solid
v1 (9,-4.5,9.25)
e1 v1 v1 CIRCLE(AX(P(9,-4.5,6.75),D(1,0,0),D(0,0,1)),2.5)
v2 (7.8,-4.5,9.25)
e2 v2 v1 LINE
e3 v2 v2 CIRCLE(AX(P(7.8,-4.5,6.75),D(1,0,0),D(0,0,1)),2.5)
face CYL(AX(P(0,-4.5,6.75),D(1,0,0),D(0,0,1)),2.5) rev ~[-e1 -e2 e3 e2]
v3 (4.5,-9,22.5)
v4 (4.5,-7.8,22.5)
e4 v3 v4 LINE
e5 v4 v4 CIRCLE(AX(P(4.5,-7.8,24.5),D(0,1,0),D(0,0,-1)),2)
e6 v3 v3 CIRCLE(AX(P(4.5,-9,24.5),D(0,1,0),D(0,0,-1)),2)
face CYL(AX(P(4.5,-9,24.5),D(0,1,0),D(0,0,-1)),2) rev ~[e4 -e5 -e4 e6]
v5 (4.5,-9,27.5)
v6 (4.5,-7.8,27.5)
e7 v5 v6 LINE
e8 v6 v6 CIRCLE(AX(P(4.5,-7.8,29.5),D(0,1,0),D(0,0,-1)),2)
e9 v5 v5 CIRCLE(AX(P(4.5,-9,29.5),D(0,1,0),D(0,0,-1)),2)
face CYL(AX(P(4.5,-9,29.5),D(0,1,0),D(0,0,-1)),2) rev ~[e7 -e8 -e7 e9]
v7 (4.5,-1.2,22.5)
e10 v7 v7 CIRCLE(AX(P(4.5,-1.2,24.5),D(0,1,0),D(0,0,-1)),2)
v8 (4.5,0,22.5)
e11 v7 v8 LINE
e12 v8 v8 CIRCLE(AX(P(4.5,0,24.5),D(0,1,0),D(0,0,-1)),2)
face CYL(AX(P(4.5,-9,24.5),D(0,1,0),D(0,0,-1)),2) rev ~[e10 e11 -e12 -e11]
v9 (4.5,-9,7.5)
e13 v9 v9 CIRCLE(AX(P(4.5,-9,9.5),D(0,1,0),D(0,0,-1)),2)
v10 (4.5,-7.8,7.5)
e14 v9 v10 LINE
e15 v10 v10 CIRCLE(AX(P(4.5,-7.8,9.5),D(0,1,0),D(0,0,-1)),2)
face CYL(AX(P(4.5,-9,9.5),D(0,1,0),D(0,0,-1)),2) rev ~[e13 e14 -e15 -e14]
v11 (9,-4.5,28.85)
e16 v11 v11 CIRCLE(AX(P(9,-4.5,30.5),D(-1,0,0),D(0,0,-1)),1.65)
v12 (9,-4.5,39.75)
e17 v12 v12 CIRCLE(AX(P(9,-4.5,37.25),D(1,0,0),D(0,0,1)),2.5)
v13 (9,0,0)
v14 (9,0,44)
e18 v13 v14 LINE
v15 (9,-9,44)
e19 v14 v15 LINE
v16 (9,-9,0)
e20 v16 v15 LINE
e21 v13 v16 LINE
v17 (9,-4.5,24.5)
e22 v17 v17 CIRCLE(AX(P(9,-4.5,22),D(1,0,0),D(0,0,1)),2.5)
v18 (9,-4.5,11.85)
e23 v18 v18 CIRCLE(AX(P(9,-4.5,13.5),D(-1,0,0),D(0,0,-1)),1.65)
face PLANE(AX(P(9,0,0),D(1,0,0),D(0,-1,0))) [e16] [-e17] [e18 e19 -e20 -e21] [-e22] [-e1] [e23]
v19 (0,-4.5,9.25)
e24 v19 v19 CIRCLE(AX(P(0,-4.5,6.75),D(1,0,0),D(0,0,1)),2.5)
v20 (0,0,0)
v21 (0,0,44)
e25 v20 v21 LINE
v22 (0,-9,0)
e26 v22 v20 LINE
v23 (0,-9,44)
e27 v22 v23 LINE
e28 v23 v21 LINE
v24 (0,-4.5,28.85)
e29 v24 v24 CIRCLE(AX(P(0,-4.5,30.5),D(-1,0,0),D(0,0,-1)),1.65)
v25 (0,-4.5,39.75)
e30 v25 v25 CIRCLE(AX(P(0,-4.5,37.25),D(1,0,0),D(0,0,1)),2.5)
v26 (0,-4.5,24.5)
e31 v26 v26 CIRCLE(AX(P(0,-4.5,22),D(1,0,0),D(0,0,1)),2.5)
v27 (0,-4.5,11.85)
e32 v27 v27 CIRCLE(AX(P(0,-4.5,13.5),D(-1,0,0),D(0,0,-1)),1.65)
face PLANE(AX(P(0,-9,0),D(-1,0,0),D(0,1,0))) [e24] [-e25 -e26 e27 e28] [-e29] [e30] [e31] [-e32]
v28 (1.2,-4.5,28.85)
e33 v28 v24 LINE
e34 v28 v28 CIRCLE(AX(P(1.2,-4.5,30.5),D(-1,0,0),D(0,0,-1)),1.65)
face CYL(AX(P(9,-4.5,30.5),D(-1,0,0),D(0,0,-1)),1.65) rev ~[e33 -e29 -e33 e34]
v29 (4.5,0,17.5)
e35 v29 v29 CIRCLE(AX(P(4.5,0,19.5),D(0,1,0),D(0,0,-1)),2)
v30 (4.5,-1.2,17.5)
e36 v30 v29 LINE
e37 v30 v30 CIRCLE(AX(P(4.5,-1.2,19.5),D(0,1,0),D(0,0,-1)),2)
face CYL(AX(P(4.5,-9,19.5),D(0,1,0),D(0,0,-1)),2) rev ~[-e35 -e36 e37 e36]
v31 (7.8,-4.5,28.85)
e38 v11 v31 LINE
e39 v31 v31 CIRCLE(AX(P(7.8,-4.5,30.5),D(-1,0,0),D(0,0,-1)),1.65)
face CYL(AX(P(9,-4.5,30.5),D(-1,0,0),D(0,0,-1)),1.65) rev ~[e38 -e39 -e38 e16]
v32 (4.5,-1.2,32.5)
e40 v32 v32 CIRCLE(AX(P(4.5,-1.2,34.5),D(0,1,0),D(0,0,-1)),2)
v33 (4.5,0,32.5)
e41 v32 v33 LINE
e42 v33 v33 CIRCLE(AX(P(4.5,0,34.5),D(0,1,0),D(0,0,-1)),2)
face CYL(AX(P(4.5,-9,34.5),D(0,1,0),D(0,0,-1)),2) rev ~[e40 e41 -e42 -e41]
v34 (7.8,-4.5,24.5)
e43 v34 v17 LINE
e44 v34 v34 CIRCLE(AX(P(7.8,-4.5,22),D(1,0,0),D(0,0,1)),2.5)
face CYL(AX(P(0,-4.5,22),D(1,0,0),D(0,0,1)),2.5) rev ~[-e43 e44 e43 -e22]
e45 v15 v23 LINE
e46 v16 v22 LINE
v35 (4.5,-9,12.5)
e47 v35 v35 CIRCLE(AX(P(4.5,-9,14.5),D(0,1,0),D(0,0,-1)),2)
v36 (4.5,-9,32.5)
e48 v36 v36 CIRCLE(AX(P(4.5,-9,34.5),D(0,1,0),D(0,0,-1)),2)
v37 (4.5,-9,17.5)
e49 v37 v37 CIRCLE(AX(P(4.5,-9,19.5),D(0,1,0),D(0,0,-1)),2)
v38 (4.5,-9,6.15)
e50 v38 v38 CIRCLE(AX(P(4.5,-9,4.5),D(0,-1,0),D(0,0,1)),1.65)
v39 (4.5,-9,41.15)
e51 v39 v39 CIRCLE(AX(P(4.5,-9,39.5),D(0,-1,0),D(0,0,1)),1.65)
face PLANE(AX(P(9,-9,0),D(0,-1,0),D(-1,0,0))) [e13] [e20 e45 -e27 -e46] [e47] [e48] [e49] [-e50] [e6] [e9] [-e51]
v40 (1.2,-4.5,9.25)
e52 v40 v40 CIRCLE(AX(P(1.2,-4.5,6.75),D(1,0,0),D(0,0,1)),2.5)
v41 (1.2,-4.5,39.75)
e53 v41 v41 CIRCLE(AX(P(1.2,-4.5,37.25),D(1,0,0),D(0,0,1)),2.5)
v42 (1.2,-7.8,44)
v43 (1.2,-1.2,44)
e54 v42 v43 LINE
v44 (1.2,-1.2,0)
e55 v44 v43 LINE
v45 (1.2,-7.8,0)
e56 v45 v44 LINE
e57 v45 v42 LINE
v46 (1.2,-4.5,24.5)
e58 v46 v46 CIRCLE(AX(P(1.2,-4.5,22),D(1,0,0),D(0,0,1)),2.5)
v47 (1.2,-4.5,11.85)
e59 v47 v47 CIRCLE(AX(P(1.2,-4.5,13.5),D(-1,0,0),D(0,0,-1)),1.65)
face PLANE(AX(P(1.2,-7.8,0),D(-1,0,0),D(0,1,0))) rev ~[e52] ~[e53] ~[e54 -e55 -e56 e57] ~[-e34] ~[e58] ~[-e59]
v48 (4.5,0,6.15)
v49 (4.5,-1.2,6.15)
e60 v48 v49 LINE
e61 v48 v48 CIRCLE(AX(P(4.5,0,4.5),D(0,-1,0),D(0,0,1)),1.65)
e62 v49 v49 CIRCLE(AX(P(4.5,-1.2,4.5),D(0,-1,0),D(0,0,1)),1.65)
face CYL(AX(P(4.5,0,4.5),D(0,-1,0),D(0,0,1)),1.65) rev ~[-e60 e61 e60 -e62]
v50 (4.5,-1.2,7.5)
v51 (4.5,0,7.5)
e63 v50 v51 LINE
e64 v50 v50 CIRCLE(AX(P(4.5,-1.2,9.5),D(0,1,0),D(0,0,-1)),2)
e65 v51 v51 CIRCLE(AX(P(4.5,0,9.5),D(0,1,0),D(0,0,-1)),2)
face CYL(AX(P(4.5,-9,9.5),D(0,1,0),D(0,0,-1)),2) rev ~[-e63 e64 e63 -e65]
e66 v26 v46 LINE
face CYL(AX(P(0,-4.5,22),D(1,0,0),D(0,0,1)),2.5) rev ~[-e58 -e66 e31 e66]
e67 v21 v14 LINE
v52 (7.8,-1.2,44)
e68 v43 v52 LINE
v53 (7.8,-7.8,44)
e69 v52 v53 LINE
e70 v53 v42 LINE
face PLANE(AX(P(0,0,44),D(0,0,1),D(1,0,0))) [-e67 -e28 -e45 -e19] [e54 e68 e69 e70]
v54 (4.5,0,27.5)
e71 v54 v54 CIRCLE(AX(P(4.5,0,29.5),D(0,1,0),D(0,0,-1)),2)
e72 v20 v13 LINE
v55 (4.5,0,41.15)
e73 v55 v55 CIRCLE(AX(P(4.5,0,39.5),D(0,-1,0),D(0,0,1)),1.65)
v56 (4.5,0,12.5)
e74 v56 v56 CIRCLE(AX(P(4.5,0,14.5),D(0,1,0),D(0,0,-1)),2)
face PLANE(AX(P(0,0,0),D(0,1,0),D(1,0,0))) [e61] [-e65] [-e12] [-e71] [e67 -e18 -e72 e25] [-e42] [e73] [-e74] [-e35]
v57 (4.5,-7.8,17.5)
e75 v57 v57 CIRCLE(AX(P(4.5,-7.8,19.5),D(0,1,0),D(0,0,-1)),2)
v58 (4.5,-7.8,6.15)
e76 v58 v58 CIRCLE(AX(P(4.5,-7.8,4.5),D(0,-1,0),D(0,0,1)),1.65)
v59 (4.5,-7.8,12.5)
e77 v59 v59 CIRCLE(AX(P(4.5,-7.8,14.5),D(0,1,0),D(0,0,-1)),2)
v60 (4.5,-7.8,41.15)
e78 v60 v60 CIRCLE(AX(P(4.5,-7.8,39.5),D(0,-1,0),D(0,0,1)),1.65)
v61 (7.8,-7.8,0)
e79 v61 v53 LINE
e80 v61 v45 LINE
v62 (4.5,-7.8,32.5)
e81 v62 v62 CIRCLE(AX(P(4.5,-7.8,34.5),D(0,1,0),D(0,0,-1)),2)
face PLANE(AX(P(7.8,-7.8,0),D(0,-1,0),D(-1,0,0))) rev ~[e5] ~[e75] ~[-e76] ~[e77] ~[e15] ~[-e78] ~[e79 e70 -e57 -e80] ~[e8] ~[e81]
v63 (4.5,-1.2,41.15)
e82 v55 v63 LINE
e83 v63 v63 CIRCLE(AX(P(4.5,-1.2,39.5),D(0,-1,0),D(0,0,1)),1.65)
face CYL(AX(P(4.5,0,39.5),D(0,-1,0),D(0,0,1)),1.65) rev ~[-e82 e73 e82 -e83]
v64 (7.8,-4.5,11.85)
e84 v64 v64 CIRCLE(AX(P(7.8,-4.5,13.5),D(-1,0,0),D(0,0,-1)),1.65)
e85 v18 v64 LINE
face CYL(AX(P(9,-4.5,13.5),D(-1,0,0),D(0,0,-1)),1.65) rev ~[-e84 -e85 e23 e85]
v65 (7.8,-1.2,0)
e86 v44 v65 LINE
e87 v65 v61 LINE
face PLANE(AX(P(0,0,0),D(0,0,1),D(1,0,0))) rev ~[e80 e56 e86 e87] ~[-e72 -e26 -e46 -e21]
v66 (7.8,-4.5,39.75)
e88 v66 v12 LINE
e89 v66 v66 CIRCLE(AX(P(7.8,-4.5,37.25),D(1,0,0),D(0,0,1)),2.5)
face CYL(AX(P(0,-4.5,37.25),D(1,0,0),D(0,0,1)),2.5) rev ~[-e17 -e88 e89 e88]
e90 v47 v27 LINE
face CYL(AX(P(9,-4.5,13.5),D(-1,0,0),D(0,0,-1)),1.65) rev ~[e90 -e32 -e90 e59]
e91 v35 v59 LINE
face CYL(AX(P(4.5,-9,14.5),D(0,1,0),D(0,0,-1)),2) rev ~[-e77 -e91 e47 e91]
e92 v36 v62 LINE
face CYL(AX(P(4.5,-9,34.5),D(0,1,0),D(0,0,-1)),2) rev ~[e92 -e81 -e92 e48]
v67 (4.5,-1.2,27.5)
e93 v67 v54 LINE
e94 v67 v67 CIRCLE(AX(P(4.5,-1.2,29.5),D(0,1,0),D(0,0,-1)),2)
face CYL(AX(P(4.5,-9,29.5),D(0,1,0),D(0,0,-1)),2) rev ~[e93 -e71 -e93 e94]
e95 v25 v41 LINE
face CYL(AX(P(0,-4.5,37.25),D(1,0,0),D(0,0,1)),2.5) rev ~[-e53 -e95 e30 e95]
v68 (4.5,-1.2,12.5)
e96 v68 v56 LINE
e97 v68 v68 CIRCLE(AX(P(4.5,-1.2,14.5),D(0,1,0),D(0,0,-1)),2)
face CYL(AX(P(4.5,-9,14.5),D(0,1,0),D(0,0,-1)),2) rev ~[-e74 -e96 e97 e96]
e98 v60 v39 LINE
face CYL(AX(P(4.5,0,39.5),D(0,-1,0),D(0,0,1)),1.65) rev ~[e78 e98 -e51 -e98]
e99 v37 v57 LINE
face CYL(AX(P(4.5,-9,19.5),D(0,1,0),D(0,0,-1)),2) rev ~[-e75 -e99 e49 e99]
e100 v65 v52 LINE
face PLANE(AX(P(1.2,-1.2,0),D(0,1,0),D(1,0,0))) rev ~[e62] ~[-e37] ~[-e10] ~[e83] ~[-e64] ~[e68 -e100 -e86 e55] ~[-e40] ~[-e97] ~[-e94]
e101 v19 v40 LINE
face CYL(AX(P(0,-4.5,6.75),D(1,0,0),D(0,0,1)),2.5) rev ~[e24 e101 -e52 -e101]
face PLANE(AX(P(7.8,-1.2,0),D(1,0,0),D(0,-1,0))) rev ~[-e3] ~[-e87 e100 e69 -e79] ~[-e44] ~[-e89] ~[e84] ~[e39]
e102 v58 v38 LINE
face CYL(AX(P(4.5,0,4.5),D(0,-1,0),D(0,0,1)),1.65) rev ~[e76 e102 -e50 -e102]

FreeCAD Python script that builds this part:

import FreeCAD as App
import Part
import Sketcher
from FreeCAD import Vector
Q = App.Units.Quantity

doc = App.newDocument("Part")
body = doc.addObject("PartDesign::Body", "Body")

# Sketch on XY plane
sketch1 = body.newObject("Sketcher::SketchObject", "Sketch")
sketch1.AttachmentSupport = (doc.getObject("XY_Plane"), [""])
sketch1.MapMode = "FlatFace"
sketch1.addGeometry(Part.LineSegment(Vector(9, 0, 0), Vector(0, 0, 0)), False)
sketch1.addGeometry(Part.LineSegment(Vector(0, 0, 0), Vector(0, -9, 0)), False)
sketch1.addGeometry(Part.LineSegment(Vector(0, -9, 0), Vector(9, -9, 0)), False)
sketch1.addGeometry(Part.LineSegment(Vector(9, -9, 0), Vector(9, 0, 0)), False)
sketch1.addGeometry(Part.LineSegment(Vector(1, -8, 0), Vector(1, -1, 0)), False)
sketch1.addGeometry(Part.LineSegment(Vector(1, -1, 0), Vector(8, -1, 0)), False)
sketch1.addGeometry(Part.LineSegment(Vector(8, -1, 0), Vector(8, -8, 0)), False)
sketch1.addGeometry(Part.LineSegment(Vector(8, -8, 0), Vector(1, -8, 0)), False)
sketch1.addConstraint(Sketcher.Constraint("Coincident", 0, 2, 1, 1))
sketch1.addConstraint(Sketcher.Constraint("Coincident", 1, 2, 2, 1))
sketch1.addConstraint(Sketcher.Constraint("Coincident", 2, 2, 3, 1))
sketch1.addConstraint(Sketcher.Constraint("Coincident", 3, 2, 0, 1))
sketch1.addConstraint(Sketcher.Constraint("Coincident", 4, 2, 5, 1))
sketch1.addConstraint(Sketcher.Constraint("Coincident", 5, 2, 6, 1))
sketch1.addConstraint(Sketcher.Constraint("Coincident", 6, 2, 7, 1))
sketch1.addConstraint(Sketcher.Constraint("Coincident", 7, 2, 4, 1))
sketch1.addConstraint(Sketcher.Constraint("Horizontal", 0))
sketch1.addConstraint(Sketcher.Constraint("Vertical", 1))
sketch1.addConstraint(Sketcher.Constraint("Horizontal", 2))
sketch1.addConstraint(Sketcher.Constraint("Vertical", 3))
sketch1.addConstraint(Sketcher.Constraint("Vertical", 4))
sketch1.addConstraint(Sketcher.Constraint("Horizontal", 5))
sketch1.addConstraint(Sketcher.Constraint("Vertical", 6))
sketch1.addConstraint(Sketcher.Constraint("Horizontal", 7))
sketch1.addConstraint(Sketcher.Constraint("Coincident", 0, 2, -1, 1))
sketch1.addConstraint(Sketcher.Constraint("Equal", 2, 1))
sketch1.addConstraint(Sketcher.Constraint("Equal", 7, 4))
sketch1.addConstraint(Sketcher.Constraint("DistanceX", 0, 2, 0, 1, Q("9 mm")))
sketch1.addConstraint(Sketcher.Constraint("DistanceX", -1, 1, 4, 2, Q("1.2 mm")))
sketch1.addConstraint(Sketcher.Constraint("DistanceY", 4, 2, -1, 1, Q("1.2 mm")))
sketch1.addConstraint(Sketcher.Constraint("DistanceX", 5, 2, 3, 2, Q("1.2 mm")))
pad1 = body.newObject("PartDesign::Pad", "Pad")
pad1.Profile = sketch1
pad1.Length = 44

# Sketch on XZ plane
sketch2 = body.newObject("Sketcher::SketchObject", "Sketch001")
sketch2.AttachmentSupport = (doc.getObject("XZ_Plane"), [""])
sketch2.MapMode = "FlatFace"
sketch2.addGeometry(Part.Circle(Vector(4.5, 39.5, 0), Vector(0, 0, 1), 1.6), False)
sketch2.addGeometry(Part.Circle(Vector(4.5, 4.5, 0), Vector(0, 0, 1), 1.6), False)
sketch2.addConstraint(Sketcher.Constraint("Equal", 0, 1))
sketch2.addConstraint(Sketcher.Constraint("Vertical", 0, 3, 1, 3))
sketch2.addConstraint(Sketcher.Constraint("Diameter", 0, Q("3.3 mm")))
sketch2.addConstraint(Sketcher.Constraint("DistanceY", 1, 3, 0, 3, Q("35 mm")))
sketch2.addConstraint(Sketcher.Constraint("DistanceX", -1, 1, 0, 3, Q("4.5 mm")))
sketch2.addConstraint(Sketcher.Constraint("DistanceY", -1, 1, 0, 3, Q("39.5 mm")))
doc.recompute()
hole = body.newObject("PartDesign::Hole", "Hole")
hole.Profile = sketch2
hole.ThreadType = "None"
hole.Diameter = 3.3
hole.DepthType = "ThroughAll"
hole.Reversed = True

# Sketch on YZ plane
sketch3 = body.newObject("Sketcher::SketchObject", "Sketch002")
sketch3.AttachmentSupport = (doc.getObject("YZ_Plane"), [""])
sketch3.MapMode = "FlatFace"
sketch3.AttachmentOffset = App.Placement(Vector(0, 0, 9), App.Rotation())
sketch3.addGeometry(Part.Circle(Vector(-4.5, 30.5, 0), Vector(0, 0, 1), 1.6), False)
sketch3.addGeometry(Part.Circle(Vector(-4.5, 13.5, 0), Vector(0, 0, 1), 1.6), False)
sketch3.addConstraint(Sketcher.Constraint("Equal", 0, 1))
sketch3.addConstraint(Sketcher.Constraint("Vertical", 0, 3, 1, 3))
sketch3.addConstraint(Sketcher.Constraint("Diameter", 0, Q("3.3 mm")))
sketch3.addConstraint(Sketcher.Constraint("DistanceY", 1, 3, 0, 3, Q("17 mm")))
sketch3.addConstraint(Sketcher.Constraint("DistanceX", 0, 3, -1, 1, Q("4.5 mm")))
sketch3.addConstraint(Sketcher.Constraint("DistanceY", -1, 1, 0, 3, Q("30.5 mm")))
doc.recompute()
hole2 = body.newObject("PartDesign::Hole", "Hole001")
hole2.Profile = sketch3
hole2.ThreadType = "None"
hole2.Diameter = 3.3
hole2.DepthType = "ThroughAll"

# Sketch on XZ plane
sketch4 = body.newObject("Sketcher::SketchObject", "Sketch003")
sketch4.AttachmentSupport = (doc.getObject("XZ_Plane"), [""])
sketch4.MapMode = "FlatFace"
sketch4.AttachmentOffset = App.Placement(Vector(0, 0, 9), App.Rotation())
sketch4.addGeometry(Part.Circle(Vector(4.5, 34.5, 0), Vector(0, 0, 1), 2), False)
sketch4.addGeometry(Part.Circle(Vector(4.5, 29.5, 0), Vector(0, 0, 1), 2), False)
sketch4.addGeometry(Part.Circle(Vector(4.5, 24.5, 0), Vector(0, 0, 1), 2), False)
sketch4.addGeometry(Part.Circle(Vector(4.5, 19.5, 0), Vector(0, 0, 1), 2), False)
sketch4.addGeometry(Part.Circle(Vector(4.5, 14.5, 0), Vector(0, 0, 1), 2), False)
sketch4.addGeometry(Part.Circle(Vector(4.5, 9.5, 0), Vector(0, 0, 1), 2), False)
sketch4.addConstraint(Sketcher.Constraint("Equal", 0, 1))
sketch4.addConstraint(Sketcher.Constraint("Equal", 1, 2))
sketch4.addConstraint(Sketcher.Constraint("Equal", 2, 3))
sketch4.addConstraint(Sketcher.Constraint("Equal", 3, 4))
sketch4.addConstraint(Sketcher.Constraint("Equal", 4, 5))
sketch4.addConstraint(Sketcher.Constraint("Vertical", 0, 3, 1, 3))
sketch4.addConstraint(Sketcher.Constraint("Vertical", 1, 3, 2, 3))
sketch4.addConstraint(Sketcher.Constraint("Vertical", 2, 3, 3, 3))
sketch4.addConstraint(Sketcher.Constraint("Vertical", 3, 3, 4, 3))
sketch4.addConstraint(Sketcher.Constraint("Vertical", 4, 3, 5, 3))
sketch4.addConstraint(Sketcher.Constraint("Diameter", 0, Q("4 mm")))
sketch4.addConstraint(Sketcher.Constraint("DistanceY", 1, 3, 0, 3, Q("5 mm")))
sketch4.addConstraint(Sketcher.Constraint("DistanceY", 2, 3, 1, 3, Q("5 mm")))
sketch4.addConstraint(Sketcher.Constraint("DistanceY", 3, 3, 2, 3, Q("5 mm")))
sketch4.addConstraint(Sketcher.Constraint("DistanceY", 4, 3, 3, 3, Q("5 mm")))
sketch4.addConstraint(Sketcher.Constraint("DistanceY", 5, 3, 4, 3, Q("5 mm")))
sketch4.addConstraint(Sketcher.Constraint("DistanceX", -1, 1, 0, 3, Q("4.5 mm")))
sketch4.addConstraint(Sketcher.Constraint("DistanceY", -1, 1, 0, 3, Q("34.5 mm")))
doc.recompute()
hole3 = body.newObject("PartDesign::Hole", "Hole002")
hole3.Profile = sketch4
hole3.ThreadType = "None"
hole3.Diameter = 4
hole3.DepthType = "ThroughAll"

# Sketch on YZ plane
sketch5 = body.newObject("Sketcher::SketchObject", "Sketch004")
sketch5.AttachmentSupport = (doc.getObject("YZ_Plane"), [""])
sketch5.MapMode = "FlatFace"
sketch5.addGeometry(Part.Circle(Vector(-4.5, 6.8, 0), Vector(0, 0, 1), 2.5), False)
sketch5.addGeometry(Part.Circle(Vector(-4.5, 37.2, 0), Vector(0, 0, 1), 2.5), False)
sketch5.addGeometry(Part.Circle(Vector(-4.5, 22, 0), Vector(0, 0, 1), 2.5), False)
sketch5.addConstraint(Sketcher.Constraint("Equal", 0, 1))
sketch5.addConstraint(Sketcher.Constraint("Equal", 1, 2))
sketch5.addConstraint(Sketcher.Constraint("Vertical", 0, 3, 1, 3))
sketch5.addConstraint(Sketcher.Constraint("Vertical", 1, 3, 2, 3))
sketch5.addConstraint(Sketcher.Constraint("Diameter", 0, Q("5 mm")))
sketch5.addConstraint(Sketcher.Constraint("DistanceY", -1, 1, 2, 3, Q("22 mm")))
sketch5.addConstraint(Sketcher.Constraint("DistanceX", 0, 3, -1, 1, Q("4.5 mm")))
sketch5.addConstraint(Sketcher.Constraint("DistanceY", 0, 3, 1, 3, Q("30.5 mm")))
sketch5.addConstraint(Sketcher.Constraint("DistanceY", -1, 1, 0, 3, Q("6.75 mm")))
doc.recompute()
hole4 = body.newObject("PartDesign::Hole", "Hole003")
hole4.Profile = sketch5
hole4.ThreadType = "None"
hole4.Diameter = 5
hole4.DepthType = "ThroughAll"
hole4.Reversed = True

doc.recompute()
